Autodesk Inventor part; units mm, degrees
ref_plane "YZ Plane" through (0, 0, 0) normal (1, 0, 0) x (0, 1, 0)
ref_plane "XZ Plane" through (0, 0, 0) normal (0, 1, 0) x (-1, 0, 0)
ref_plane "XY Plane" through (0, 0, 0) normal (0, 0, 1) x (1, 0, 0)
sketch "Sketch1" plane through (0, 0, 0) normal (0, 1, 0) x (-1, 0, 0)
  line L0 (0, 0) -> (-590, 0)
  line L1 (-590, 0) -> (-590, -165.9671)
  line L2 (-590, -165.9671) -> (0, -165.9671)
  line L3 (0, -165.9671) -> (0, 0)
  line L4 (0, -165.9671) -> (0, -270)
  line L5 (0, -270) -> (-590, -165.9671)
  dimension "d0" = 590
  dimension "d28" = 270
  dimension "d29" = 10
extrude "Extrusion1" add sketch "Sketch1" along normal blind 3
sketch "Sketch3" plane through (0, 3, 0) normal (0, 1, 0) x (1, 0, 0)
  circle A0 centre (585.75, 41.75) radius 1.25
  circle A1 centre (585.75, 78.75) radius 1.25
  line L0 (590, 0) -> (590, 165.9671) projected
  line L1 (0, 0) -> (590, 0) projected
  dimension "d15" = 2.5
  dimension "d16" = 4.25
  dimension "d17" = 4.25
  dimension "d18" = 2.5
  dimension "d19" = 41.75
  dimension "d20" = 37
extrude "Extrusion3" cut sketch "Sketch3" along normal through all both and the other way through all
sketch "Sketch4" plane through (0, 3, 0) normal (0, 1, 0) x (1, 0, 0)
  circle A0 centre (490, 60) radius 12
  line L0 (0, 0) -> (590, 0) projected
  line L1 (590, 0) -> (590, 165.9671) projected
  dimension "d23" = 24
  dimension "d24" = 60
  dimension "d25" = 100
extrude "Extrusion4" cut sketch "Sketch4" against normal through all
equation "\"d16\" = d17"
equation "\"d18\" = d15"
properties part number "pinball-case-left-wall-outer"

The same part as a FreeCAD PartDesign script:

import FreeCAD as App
import Part
import Sketcher
from FreeCAD import Vector
Q = App.Units.Quantity


def add_polygon(sketch, points):
    """Adds a closed chain of lines whose ends are joined by coincident constraints."""
    first, n = sketch.GeometryCount, len(points)
    for a, b in zip(points, points[1:] + points[:1]):
        sketch.addGeometry(Part.LineSegment(App.Vector(*a, 0), App.Vector(*b, 0)), False)
    for i in range(n):
        sketch.addConstraint(Sketcher.Constraint("Coincident", first + i, 2, first + (i + 1) % n, 1))

doc = App.newDocument("Part")
body = doc.addObject("PartDesign::Body", "Body")

# Sketch on XZ plane
sketch1 = doc.addObject("Sketcher::SketchObject", "Sketch")
body.addObject(sketch1)
sketch1.AttachmentSupport = (doc.XZ_Plane, [""])
sketch1.MapMode = "FlatFace"
add_polygon(sketch1, [(0, 0), (590, 0), (590, -166), (0, -270)])  # lines 0-3
sketch1.addConstraint([
    Sketcher.Constraint("Horizontal", 0),
    Sketcher.Constraint("Vertical", 1),
    Sketcher.Constraint("Vertical", 3),
    Sketcher.Constraint("Coincident", 3, 2, -1, 1),
    Sketcher.Constraint("DistanceX", 0, 1, 0, 2, Q("590 mm")),
    Sketcher.Constraint("DistanceY", 3, 1, 3, 2, Q("270 mm")),
    Sketcher.Constraint("Angle", 2, Q("-170 deg")),
])
pad1 = doc.addObject("PartDesign::Pad", "Pad")
body.addObject(pad1)
pad1.Profile = sketch1
pad1.Length = 3
pad1.Reversed = True

# Sketch on XZ plane
sketch2 = doc.addObject("Sketcher::SketchObject", "Sketch001")
body.addObject(sketch2)
sketch2.AttachmentSupport = (doc.XZ_Plane, [""])
sketch2.MapMode = "FlatFace"
sketch2.AttachmentOffset = App.Placement(Vector(0, 0, -3), App.Rotation())
sketch2.addGeometry([
    Part.Circle(Vector(585.8, -41.8, 0), Vector(0, 0, 1), 1.2),
    Part.Circle(Vector(585.8, -78.8, 0), Vector(0, 0, 1), 1.2),
], False)
sketch2.addConstraint([
    Sketcher.Constraint("Equal", 0, 1),
    Sketcher.Constraint("Vertical", 0, 3, 1, 3),
    Sketcher.Constraint("Diameter", 0, Q("2.5 mm")),
    Sketcher.Constraint("DistanceY", 1, 3, 0, 3, Q("37 mm")),
    Sketcher.Constraint("DistanceY", 0, 3, -1, 1, Q("41.75 mm")),
    Sketcher.Constraint("DistanceX", -1, 1, 0, 3, Q("585.75 mm")),
])
pocket1 = doc.addObject("PartDesign::Pocket", "Pocket")
body.addObject(pocket1)
pocket1.Profile = sketch2
pocket1.Type = "ThroughAll"
pocket1.Midplane = True

# Sketch on XZ plane
sketch3 = doc.addObject("Sketcher::SketchObject", "Sketch002")
body.addObject(sketch3)
sketch3.AttachmentSupport = (doc.XZ_Plane, [""])
sketch3.MapMode = "FlatFace"
sketch3.AttachmentOffset = App.Placement(Vector(0, 0, -3), App.Rotation())
sketch3.addGeometry(Part.Circle(Vector(490, -60, 0), Vector(0, 0, 1), 12), False)
sketch3.addConstraint([
    Sketcher.Constraint("Diameter", 0, Q("24 mm")),
    Sketcher.Constraint("DistanceY", 0, 3, -1, 1, Q("60 mm")),
    Sketcher.Constraint("DistanceX", -1, 1, 0, 3, Q("490 mm")),
])
pocket2 = doc.addObject("PartDesign::Pocket", "Pocket001")
body.addObject(pocket2)
pocket2.Profile = sketch3
pocket2.Type = "ThroughAll"
pocket2.Reversed = True

doc.recompute()
